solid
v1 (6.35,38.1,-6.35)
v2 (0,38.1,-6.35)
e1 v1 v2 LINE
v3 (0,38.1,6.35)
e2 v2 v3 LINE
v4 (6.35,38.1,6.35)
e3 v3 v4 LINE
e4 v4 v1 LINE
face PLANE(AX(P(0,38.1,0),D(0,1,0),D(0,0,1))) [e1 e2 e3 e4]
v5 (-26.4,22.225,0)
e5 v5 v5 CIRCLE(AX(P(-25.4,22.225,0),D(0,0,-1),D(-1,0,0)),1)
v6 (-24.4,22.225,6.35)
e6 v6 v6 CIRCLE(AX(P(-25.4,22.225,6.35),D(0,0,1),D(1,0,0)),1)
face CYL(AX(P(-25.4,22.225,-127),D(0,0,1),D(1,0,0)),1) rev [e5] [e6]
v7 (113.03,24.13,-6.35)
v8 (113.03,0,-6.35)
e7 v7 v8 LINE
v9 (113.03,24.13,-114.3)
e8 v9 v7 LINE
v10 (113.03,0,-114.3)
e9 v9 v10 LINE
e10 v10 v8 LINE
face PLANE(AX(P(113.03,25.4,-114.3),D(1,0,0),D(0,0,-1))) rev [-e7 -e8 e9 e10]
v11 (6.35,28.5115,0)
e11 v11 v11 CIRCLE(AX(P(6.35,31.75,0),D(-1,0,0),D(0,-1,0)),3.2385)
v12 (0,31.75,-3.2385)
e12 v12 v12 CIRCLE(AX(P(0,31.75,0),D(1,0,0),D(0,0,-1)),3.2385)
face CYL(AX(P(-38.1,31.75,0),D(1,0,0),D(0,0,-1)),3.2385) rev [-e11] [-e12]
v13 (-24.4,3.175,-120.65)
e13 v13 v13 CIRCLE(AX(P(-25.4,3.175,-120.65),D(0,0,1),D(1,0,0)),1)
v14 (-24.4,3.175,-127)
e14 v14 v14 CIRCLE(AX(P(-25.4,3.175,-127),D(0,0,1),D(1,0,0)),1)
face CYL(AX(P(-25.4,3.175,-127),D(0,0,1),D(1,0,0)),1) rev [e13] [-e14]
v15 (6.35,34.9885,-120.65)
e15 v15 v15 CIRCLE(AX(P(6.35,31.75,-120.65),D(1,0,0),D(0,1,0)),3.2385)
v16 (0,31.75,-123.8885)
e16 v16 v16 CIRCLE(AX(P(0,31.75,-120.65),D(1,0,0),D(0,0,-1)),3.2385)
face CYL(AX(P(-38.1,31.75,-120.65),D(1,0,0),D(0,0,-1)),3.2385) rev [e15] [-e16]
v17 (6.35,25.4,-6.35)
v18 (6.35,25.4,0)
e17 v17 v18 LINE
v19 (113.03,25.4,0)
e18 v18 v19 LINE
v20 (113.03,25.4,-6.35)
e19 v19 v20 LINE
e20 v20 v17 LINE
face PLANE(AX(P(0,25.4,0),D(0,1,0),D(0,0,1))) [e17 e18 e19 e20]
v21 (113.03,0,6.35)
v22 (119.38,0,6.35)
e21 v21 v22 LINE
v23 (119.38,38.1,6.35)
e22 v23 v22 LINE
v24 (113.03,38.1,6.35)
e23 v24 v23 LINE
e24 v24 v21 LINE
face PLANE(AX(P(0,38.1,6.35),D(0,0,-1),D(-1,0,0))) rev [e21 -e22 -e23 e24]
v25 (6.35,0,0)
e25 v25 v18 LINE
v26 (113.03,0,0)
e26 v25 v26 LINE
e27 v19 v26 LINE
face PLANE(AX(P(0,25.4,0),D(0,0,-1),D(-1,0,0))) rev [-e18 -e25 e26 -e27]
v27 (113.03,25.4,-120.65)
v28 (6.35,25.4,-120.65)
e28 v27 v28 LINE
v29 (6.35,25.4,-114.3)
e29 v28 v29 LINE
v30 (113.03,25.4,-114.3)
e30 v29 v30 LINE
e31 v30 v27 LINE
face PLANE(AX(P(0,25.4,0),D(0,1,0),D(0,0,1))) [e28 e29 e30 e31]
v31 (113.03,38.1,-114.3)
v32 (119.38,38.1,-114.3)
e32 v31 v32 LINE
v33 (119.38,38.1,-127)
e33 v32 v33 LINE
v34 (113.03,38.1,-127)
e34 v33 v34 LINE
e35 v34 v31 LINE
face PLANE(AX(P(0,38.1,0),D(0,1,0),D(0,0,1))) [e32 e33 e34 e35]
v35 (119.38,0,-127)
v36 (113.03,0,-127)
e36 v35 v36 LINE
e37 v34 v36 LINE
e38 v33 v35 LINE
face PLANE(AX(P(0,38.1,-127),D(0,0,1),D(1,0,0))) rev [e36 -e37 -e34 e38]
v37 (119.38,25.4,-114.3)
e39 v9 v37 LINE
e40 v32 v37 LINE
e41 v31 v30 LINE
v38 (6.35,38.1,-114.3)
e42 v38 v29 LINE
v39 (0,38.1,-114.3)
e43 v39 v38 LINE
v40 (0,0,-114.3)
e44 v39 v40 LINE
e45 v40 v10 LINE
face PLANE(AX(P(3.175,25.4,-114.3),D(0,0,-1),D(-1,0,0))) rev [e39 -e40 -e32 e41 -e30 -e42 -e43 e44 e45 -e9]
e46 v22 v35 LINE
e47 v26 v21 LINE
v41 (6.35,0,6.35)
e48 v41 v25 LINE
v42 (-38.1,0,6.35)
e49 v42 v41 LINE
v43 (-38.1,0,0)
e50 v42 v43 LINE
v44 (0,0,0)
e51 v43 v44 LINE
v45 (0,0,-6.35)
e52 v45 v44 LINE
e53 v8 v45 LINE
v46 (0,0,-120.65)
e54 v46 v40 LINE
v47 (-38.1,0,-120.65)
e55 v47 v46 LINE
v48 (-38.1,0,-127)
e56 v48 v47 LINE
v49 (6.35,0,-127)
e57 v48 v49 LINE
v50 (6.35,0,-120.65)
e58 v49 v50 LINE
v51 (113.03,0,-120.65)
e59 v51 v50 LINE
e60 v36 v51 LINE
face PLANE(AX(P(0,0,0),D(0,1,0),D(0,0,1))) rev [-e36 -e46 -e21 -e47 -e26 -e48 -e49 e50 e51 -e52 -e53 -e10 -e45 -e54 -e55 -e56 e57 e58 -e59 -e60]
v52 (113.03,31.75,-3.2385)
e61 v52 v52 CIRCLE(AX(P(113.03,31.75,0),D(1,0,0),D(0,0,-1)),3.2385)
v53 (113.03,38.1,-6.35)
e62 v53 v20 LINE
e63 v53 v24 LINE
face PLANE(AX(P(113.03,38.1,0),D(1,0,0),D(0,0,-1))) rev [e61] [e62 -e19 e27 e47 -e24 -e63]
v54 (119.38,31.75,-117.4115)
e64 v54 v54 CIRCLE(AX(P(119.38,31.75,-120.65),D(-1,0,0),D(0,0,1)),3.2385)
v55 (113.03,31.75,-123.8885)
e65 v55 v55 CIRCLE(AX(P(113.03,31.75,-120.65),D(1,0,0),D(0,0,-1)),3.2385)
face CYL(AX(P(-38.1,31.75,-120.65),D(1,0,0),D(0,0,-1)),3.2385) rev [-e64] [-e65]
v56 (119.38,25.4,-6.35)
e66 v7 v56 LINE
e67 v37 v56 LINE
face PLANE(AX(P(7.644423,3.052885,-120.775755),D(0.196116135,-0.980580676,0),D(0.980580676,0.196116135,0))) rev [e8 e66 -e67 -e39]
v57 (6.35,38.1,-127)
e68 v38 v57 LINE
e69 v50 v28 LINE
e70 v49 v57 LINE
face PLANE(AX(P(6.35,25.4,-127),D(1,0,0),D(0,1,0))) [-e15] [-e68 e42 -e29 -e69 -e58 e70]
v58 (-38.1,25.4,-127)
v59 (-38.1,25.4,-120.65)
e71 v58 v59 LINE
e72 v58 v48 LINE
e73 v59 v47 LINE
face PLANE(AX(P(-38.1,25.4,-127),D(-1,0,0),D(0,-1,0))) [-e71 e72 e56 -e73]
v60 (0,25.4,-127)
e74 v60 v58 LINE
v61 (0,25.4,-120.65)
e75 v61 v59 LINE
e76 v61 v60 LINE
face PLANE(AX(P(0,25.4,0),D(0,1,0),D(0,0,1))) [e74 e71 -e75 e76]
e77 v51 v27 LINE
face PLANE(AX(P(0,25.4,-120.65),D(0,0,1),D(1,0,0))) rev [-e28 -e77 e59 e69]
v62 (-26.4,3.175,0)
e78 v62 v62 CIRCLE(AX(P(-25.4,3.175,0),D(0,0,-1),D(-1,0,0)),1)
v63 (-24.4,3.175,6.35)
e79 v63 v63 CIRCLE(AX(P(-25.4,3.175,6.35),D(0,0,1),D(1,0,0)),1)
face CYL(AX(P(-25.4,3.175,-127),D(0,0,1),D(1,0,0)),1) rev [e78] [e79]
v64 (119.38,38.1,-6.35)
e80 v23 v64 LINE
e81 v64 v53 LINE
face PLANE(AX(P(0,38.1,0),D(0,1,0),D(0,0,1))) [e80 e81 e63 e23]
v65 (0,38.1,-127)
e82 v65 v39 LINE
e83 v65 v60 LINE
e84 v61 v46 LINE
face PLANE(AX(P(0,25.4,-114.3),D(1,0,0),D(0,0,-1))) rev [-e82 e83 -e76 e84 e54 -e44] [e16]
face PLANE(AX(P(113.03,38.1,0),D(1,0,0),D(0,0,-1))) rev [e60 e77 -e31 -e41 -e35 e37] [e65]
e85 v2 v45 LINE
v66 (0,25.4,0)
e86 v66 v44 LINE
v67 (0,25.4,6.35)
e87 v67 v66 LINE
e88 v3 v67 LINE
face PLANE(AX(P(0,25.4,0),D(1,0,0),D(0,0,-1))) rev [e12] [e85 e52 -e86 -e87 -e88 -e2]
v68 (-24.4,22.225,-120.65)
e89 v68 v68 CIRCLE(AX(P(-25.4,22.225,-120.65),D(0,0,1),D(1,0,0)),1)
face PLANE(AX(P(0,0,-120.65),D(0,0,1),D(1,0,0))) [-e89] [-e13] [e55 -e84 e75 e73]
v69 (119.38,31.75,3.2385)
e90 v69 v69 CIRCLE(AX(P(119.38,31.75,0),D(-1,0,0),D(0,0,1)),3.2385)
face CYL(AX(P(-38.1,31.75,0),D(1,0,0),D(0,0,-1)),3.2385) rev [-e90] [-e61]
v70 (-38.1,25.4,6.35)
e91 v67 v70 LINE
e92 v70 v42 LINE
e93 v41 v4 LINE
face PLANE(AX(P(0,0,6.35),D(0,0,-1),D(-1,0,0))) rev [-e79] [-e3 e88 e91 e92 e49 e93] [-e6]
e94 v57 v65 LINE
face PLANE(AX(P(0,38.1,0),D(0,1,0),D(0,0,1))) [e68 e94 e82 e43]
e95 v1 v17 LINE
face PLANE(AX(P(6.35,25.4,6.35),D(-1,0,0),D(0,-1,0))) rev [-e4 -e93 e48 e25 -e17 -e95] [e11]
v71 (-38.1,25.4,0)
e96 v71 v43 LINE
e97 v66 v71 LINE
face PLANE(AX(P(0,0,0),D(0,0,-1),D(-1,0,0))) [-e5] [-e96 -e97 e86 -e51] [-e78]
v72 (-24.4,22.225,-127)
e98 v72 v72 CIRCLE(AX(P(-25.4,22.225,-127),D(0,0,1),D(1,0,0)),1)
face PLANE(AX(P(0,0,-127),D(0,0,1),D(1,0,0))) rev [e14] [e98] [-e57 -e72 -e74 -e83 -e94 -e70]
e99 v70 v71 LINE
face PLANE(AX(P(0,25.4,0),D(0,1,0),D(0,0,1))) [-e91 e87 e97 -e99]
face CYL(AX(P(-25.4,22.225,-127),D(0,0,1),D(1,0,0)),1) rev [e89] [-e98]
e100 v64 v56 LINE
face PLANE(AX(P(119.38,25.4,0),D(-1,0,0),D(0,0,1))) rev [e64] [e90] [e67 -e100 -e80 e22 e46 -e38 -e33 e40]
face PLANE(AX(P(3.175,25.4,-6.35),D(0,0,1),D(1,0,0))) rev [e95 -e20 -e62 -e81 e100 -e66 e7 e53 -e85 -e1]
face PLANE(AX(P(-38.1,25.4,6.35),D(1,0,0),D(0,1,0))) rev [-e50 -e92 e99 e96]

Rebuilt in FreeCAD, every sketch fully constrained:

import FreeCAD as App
import Part
import Sketcher
Q = App.Units.Quantity

doc = App.newDocument("Part")
params = doc.addObject("Spreadsheet::Sheet", "Params")
for row, (alias, value) in enumerate([
    ("sketch1_width", "4.7 in"),
    ("sketch1_width2", "4.45 in"),
    ("sketch1_height", "4.25 in"),
    ("sketch1_height2", "0.25 in"),
    ("pad1_length", "1 in"),
    ("sketch2_width", "0.25 in"),
    ("sketch2_height", "0.05 in"),
    ("pocket1_length", "4.25 in"),
    ("sketch3_height", "1 in"),
    ("sketch3_width", "1.75 in"),
    ("pad2_length", "0.25 in"),
    ("sketch4_height", "1 in"),
    ("sketch4_width", "1.75 in"),
    ("pad3_length", "0.25 in"),
    ("sketch5_height", "0.5 in"),
    ("sketch5_width", "0.25 in"),
    ("pad4_length", "1.5 in"),
    ("sketch6_diameter", "0.255 in"),
], start=1):
    params.set(f"A{row}", alias)
    params.set(f"B{row}", "=" + value)
    params.setAlias(f"B{row}", alias)

body = doc.addObject("PartDesign::Body", "Body")

# Sketch on XZ plane
sketch1 = body.newObject("Sketcher::SketchObject", "Sketch")
sketch1.AttachmentSupport = (doc.getObject("XZ_Plane"), [""])
sketch1.MapMode = "FlatFace"
sketch1.addGeometry([
    Part.LineSegment(App.Vector(0, -114, 0), App.Vector(113, -114, 0)),  # 0
    Part.LineSegment(App.Vector(113, -114, 0), App.Vector(113, -6, 0)),  # 1
    Part.LineSegment(App.Vector(113, -6, 0), App.Vector(0, -6, 0)),  # 2
    Part.LineSegment(App.Vector(0, -6, 0), App.Vector(0, 0, 0)),  # 3
    Part.LineSegment(App.Vector(0, 0, 0), App.Vector(119, 0, 0)),  # 4
    Part.LineSegment(App.Vector(119, 0, 0), App.Vector(119, -121, 0)),  # 5
    Part.LineSegment(App.Vector(119, -121, 0), App.Vector(0, -121, 0)),  # 6
    Part.LineSegment(App.Vector(0, -121, 0), App.Vector(0, -114, 0)),  # 7
], False)
sketch1.addConstraint([
    Sketcher.Constraint("Coincident", 0, 2, 1, 1),
    Sketcher.Constraint("Coincident", 1, 2, 2, 1),
    Sketcher.Constraint("Coincident", 2, 2, 3, 1),
    Sketcher.Constraint("Coincident", 3, 2, 4, 1),
    Sketcher.Constraint("Coincident", 4, 2, 5, 1),
    Sketcher.Constraint("Coincident", 5, 2, 6, 1),
    Sketcher.Constraint("Coincident", 6, 2, 7, 1),
    Sketcher.Constraint("Coincident", 7, 2, 0, 1),
    Sketcher.Constraint("Horizontal", 0),
    Sketcher.Constraint("Vertical", 1),
    Sketcher.Constraint("Horizontal", 2),
    Sketcher.Constraint("Vertical", 3),
    Sketcher.Constraint("Horizontal", 4),
    Sketcher.Constraint("Vertical", 5),
    Sketcher.Constraint("Horizontal", 6),
    Sketcher.Constraint("Vertical", 7),
    Sketcher.Constraint("Coincident", 3, 2, -1, 1),
    Sketcher.Constraint("PointOnObject", 6, 2, -2),
    Sketcher.Constraint("Equal", 3, 7),
    Sketcher.Constraint("DistanceX", 4, 1, 4, 2, Q("4.7 in")),
    Sketcher.Constraint("DistanceX", 0, 1, 0, 2, Q("4.45 in")),
    Sketcher.Constraint("DistanceY", 1, 1, 1, 2, Q("4.25 in")),
    Sketcher.Constraint("DistanceY", 3, 1, 3, 2, Q("0.25 in")),
])
sketch1.setExpression("Constraints[19]", "Params.sketch1_width")
sketch1.setExpression("Constraints[20]", "Params.sketch1_width2")
sketch1.setExpression("Constraints[21]", "Params.sketch1_height")
sketch1.setExpression("Constraints[22]", "Params.sketch1_height2")
pad1 = body.newObject("PartDesign::Pad", "Pad")
pad1.Profile = sketch1
pad1.setExpression("Length", "Params.pad1_length")
pad1.Reversed = True

# Sketch on XY plane
sketch2 = body.newObject("Sketcher::SketchObject", "Sketch001")
sketch2.AttachmentSupport = (doc.getObject("XY_Plane"), [""])
sketch2.MapMode = "FlatFace"
sketch2.AttachmentOffset = App.Placement(App.Vector(0, 0, -0.25 * 25.4), App.Rotation())
sketch2.addGeometry([
    Part.LineSegment(App.Vector(113, 24.1, 0), App.Vector(119.4, 25.4, 0)),
    Part.LineSegment(App.Vector(119.4, 25.4, 0), App.Vector(113, 25.4, 0)),
    Part.LineSegment(App.Vector(113, 25.4, 0), App.Vector(113, 24.1, 0)),
], False)
sketch2.addConstraint([
    Sketcher.Constraint("Coincident", 0, 2, 1, 1),
    Sketcher.Constraint("Coincident", 1, 2, 2, 1),
    Sketcher.Constraint("Coincident", 2, 2, 0, 1),
    Sketcher.Constraint("Horizontal", 1),
    Sketcher.Constraint("Vertical", 2),
    Sketcher.Constraint("DistanceY", -1, 1, 0, 2, Q("1 in")),
    Sketcher.Constraint("DistanceX", 1, 2, 1, 1, Q("0.25 in")),
    Sketcher.Constraint("DistanceY", 2, 2, 2, 1, Q("0.05 in")),
    Sketcher.Constraint("DistanceX", -1, 1, 0, 2, Q("4.7 in")),
])
sketch2.setExpression("Constraints[6]", "Params.sketch2_width")
sketch2.setExpression("Constraints[7]", "Params.sketch2_height")
pocket1 = body.newObject("PartDesign::Pocket", "Pocket")
pocket1.Profile = sketch2
pocket1.setExpression("Length", "Params.pocket1_length")

# Sketch on XY plane
sketch3 = body.newObject("Sketcher::SketchObject", "Sketch002")
sketch3.AttachmentSupport = (doc.getObject("XY_Plane"), [""])
sketch3.MapMode = "FlatFace"
sketch3.addGeometry([
    Part.LineSegment(App.Vector(-38, 25, 0), App.Vector(-38, 0, 0)),
    Part.LineSegment(App.Vector(-38, 0, 0), App.Vector(6, 0, 0)),
    Part.LineSegment(App.Vector(6, 0, 0), App.Vector(6, 25, 0)),
    Part.LineSegment(App.Vector(6, 25, 0), App.Vector(-38, 25, 0)),
], False)
sketch3.addConstraint([
    Sketcher.Constraint("Coincident", 0, 2, 1, 1),
    Sketcher.Constraint("Coincident", 1, 2, 2, 1),
    Sketcher.Constraint("Coincident", 2, 2, 3, 1),
    Sketcher.Constraint("Coincident", 3, 2, 0, 1),
    Sketcher.Constraint("Vertical", 0),
    Sketcher.Constraint("Horizontal", 1),
    Sketcher.Constraint("Vertical", 2),
    Sketcher.Constraint("Horizontal", 3),
    Sketcher.Constraint("PointOnObject", 0, 2, -1),
    Sketcher.Constraint("DistanceY", 0, 2, 0, 1, Q("1 in")),
    Sketcher.Constraint("DistanceX", 1, 1, 1, 2, Q("1.75 in")),
    Sketcher.Constraint("DistanceX", 0, 2, -1, 1, Q("1.5 in")),
])
sketch3.setExpression("Constraints[9]", "Params.sketch3_height")
sketch3.setExpression("Constraints[10]", "Params.sketch3_width")
pad2 = body.newObject("PartDesign::Pad", "Pad001")
pad2.Profile = sketch3
pad2.setExpression("Length", "Params.pad2_length")

# Sketch on XY plane
sketch4 = body.newObject("Sketcher::SketchObject", "Sketch003")
sketch4.AttachmentSupport = (doc.getObject("XY_Plane"), [""])
sketch4.MapMode = "FlatFace"
sketch4.AttachmentOffset = App.Placement(App.Vector(0, 0, -4.75 * 25.4), App.Rotation())
sketch4.addGeometry([
    Part.LineSegment(App.Vector(-38, 25, 0), App.Vector(-38, 0, 0)),
    Part.LineSegment(App.Vector(-38, 0, 0), App.Vector(6, 0, 0)),
    Part.LineSegment(App.Vector(6, 0, 0), App.Vector(6, 25, 0)),
    Part.LineSegment(App.Vector(6, 25, 0), App.Vector(-38, 25, 0)),
], False)
sketch4.addConstraint([
    Sketcher.Constraint("Coincident", 0, 2, 1, 1),
    Sketcher.Constraint("Coincident", 1, 2, 2, 1),
    Sketcher.Constraint("Coincident", 2, 2, 3, 1),
    Sketcher.Constraint("Coincident", 3, 2, 0, 1),
    Sketcher.Constraint("Vertical", 0),
    Sketcher.Constraint("Horizontal", 1),
    Sketcher.Constraint("Vertical", 2),
    Sketcher.Constraint("Horizontal", 3),
    Sketcher.Constraint("PointOnObject", 0, 2, -1),
    Sketcher.Constraint("DistanceY", 0, 2, 0, 1, Q("1 in")),
    Sketcher.Constraint("DistanceX", 1, 1, 1, 2, Q("1.75 in")),
    Sketcher.Constraint("DistanceX", 0, 2, -1, 1, Q("1.5 in")),
])
sketch4.setExpression("Constraints[9]", "Params.sketch4_height")
sketch4.setExpression("Constraints[10]", "Params.sketch4_width")
pad3 = body.newObject("PartDesign::Pad", "Pad002")
pad3.Profile = sketch4
pad3.setExpression("Length", "Params.pad3_length")
pad3.Reversed = True

# Sketch on XZ plane
sketch5 = body.newObject("Sketcher::SketchObject", "Sketch004")
sketch5.AttachmentSupport = (doc.getObject("XZ_Plane"), [""])
sketch5.MapMode = "FlatFace"
sketch5.addGeometry([
    Part.LineSegment(App.Vector(113, -6, 0), App.Vector(113, 6, 0)),  # 0
    Part.LineSegment(App.Vector(113, 6, 0), App.Vector(119, 6, 0)),  # 1
    Part.LineSegment(App.Vector(119, 6, 0), App.Vector(119, -6, 0)),  # 2
    Part.LineSegment(App.Vector(119, -6, 0), App.Vector(113, -6, 0)),  # 3
    Part.LineSegment(App.Vector(0, -6, 0), App.Vector(0, 6, 0)),  # 4
    Part.LineSegment(App.Vector(0, 6, 0), App.Vector(6, 6, 0)),  # 5
    Part.LineSegment(App.Vector(6, 6, 0), App.Vector(6, -6, 0)),  # 6
    Part.LineSegment(App.Vector(6, -6, 0), App.Vector(0, -6, 0)),  # 7
    Part.LineSegment(App.Vector(0, -127, 0), App.Vector(0, -114, 0)),  # 8
    Part.LineSegment(App.Vector(0, -114, 0), App.Vector(6, -114, 0)),  # 9
    Part.LineSegment(App.Vector(6, -114, 0), App.Vector(6, -127, 0)),  # 10
    Part.LineSegment(App.Vector(6, -127, 0), App.Vector(0, -127, 0)),  # 11
    Part.LineSegment(App.Vector(113, -127, 0), App.Vector(113, -114, 0)),  # 12
    Part.LineSegment(App.Vector(113, -114, 0), App.Vector(119, -114, 0)),  # 13
    Part.LineSegment(App.Vector(119, -114, 0), App.Vector(119, -127, 0)),  # 14
    Part.LineSegment(App.Vector(119, -127, 0), App.Vector(113, -127, 0)),  # 15
], False)
sketch5.addConstraint([
    Sketcher.Constraint("Coincident", 0, 2, 1, 1),
    Sketcher.Constraint("Coincident", 1, 2, 2, 1),
    Sketcher.Constraint("Coincident", 2, 2, 3, 1),
    Sketcher.Constraint("Coincident", 3, 2, 0, 1),
    Sketcher.Constraint("Coincident", 4, 2, 5, 1),
    Sketcher.Constraint("Coincident", 5, 2, 6, 1),
    Sketcher.Constraint("Coincident", 6, 2, 7, 1),
    Sketcher.Constraint("Coincident", 7, 2, 4, 1),
    Sketcher.Constraint("Coincident", 8, 2, 9, 1),
    Sketcher.Constraint("Coincident", 9, 2, 10, 1),
    Sketcher.Constraint("Coincident", 10, 2, 11, 1),
    Sketcher.Constraint("Coincident", 11, 2, 8, 1),
    Sketcher.Constraint("Coincident", 12, 2, 13, 1),
    Sketcher.Constraint("Coincident", 13, 2, 14, 1),
    Sketcher.Constraint("Coincident", 14, 2, 15, 1),
    Sketcher.Constraint("Coincident", 15, 2, 12, 1),
    Sketcher.Constraint("Vertical", 0),
    Sketcher.Constraint("Horizontal", 1),
    Sketcher.Constraint("Vertical", 2),
    Sketcher.Constraint("Horizontal", 3),
    Sketcher.Constraint("Vertical", 4),
    Sketcher.Constraint("Horizontal", 5),
    Sketcher.Constraint("Vertical", 6),
    Sketcher.Constraint("Horizontal", 7),
    Sketcher.Constraint("Vertical", 8),
    Sketcher.Constraint("Horizontal", 9),
    Sketcher.Constraint("Vertical", 10),
    Sketcher.Constraint("Horizontal", 11),
    Sketcher.Constraint("Vertical", 12),
    Sketcher.Constraint("Horizontal", 13),
    Sketcher.Constraint("Vertical", 14),
    Sketcher.Constraint("Horizontal", 15),
    Sketcher.Constraint("Symmetric", 4, 2, 7, 2, -1, 1),
    Sketcher.Constraint("PointOnObject", 8, 2, -2),
    Sketcher.Constraint("Horizontal", 1, 2, 4, 2),
    Sketcher.Constraint("Horizontal", 3, 2, 6, 2),
    Sketcher.Constraint("Horizontal", 9, 2, 12, 2),
    Sketcher.Constraint("Horizontal", 11, 2, 14, 2),
    Sketcher.Constraint("Vertical", 6, 2, 9, 2),
    Sketcher.Constraint("Vertical", 3, 2, 12, 2),
    Sketcher.Constraint("Vertical", 2, 2, 13, 2),
    Sketcher.Constraint("Equal", 3, 5),
    Sketcher.Constraint("Equal", 6, 8),
    Sketcher.Constraint("DistanceY", 0, 1, 0, 2, Q("0.5 in")),
    Sketcher.Constraint("DistanceY", 10, 2, -1, 1, Q("5 in")),
    Sketcher.Constraint("DistanceX", 1, 1, 1, 2, Q("0.25 in")),
    Sketcher.Constraint("DistanceX", -1, 1, 1, 2, Q("4.7 in")),
])
sketch5.setExpression("Constraints[43]", "Params.sketch5_height")
sketch5.setExpression("Constraints[45]", "Params.sketch5_width")
pad4 = body.newObject("PartDesign::Pad", "Pad003")
pad4.Profile = sketch5
pad4.setExpression("Length", "Params.pad4_length")
pad4.Reversed = True

# Sketch on YZ plane
sketch6 = body.newObject("Sketcher::SketchObject", "Sketch005")
sketch6.AttachmentSupport = (doc.getObject("YZ_Plane"), [""])
sketch6.MapMode = "FlatFace"
sketch6.AttachmentOffset = App.Placement(App.Vector(0, 0, 4.7 * 25.4), App.Rotation())
sketch6.addGeometry([
    Part.Circle(App.Vector(31.8, 0, 0), App.Vector(0, 0, 1), 3.2),
    Part.Circle(App.Vector(31.8, -120.7, 0), App.Vector(0, 0, 1), 3.2),
], False)
sketch6.addConstraint([
    Sketcher.Constraint("Equal", 0, 1),
    Sketcher.Constraint("PointOnObject", 0, 3, -1),
    Sketcher.Constraint("Vertical", 0, 3, 1, 3),
    Sketcher.Constraint("Diameter", 0, Q("0.255 in")),
    Sketcher.Constraint("DistanceX", -1, 1, 0, 3, Q("1.25 in")),
    Sketcher.Constraint("DistanceY", 1, 3, -1, 1, Q("4.75 in")),
])
sketch6.setExpression("Constraints[3]", "Params.sketch6_diameter")
pocket2 = body.newObject("PartDesign::Pocket", "Pocket001")
pocket2.Profile = sketch6
pocket2.Type = "ThroughAll"
pocket2.Midplane = True

# Sketch on XY plane
sketch7 = body.newObject("Sketcher::SketchObject", "Sketch006")
sketch7.AttachmentSupport = (doc.getObject("XY_Plane"), [""])
sketch7.MapMode = "FlatFace"
sketch7.AttachmentOffset = App.Placement(App.Vector(0, 0, 0.25 * 25.4), App.Rotation())
sketch7.addGeometry([
    Part.Circle(App.Vector(-25.4, 22.2, 0), App.Vector(0, 0, 1), 1),
    Part.Circle(App.Vector(-25.4, 3.2, 0), App.Vector(0, 0, 1), 1),
], False)
sketch7.addConstraint([
    Sketcher.Constraint("Equal", 0, 1),
    Sketcher.Constraint("Vertical", 0, 3, 1, 3),
    Sketcher.Constraint("DistanceX", 0, 3, -1, 1, Q("1 in")),
    Sketcher.Constraint("Diameter", 0, 2.0),
    Sketcher.Constraint("DistanceY", 1, 3, 0, 3, Q("0.75 in")),
    Sketcher.Constraint("DistanceY", -1, 1, 0, 3, Q("0.875 in")),
])
pocket3 = body.newObject("PartDesign::Pocket", "Pocket002")
pocket3.Profile = sketch7
pocket3.Type = "ThroughAll"

doc.recompute()
